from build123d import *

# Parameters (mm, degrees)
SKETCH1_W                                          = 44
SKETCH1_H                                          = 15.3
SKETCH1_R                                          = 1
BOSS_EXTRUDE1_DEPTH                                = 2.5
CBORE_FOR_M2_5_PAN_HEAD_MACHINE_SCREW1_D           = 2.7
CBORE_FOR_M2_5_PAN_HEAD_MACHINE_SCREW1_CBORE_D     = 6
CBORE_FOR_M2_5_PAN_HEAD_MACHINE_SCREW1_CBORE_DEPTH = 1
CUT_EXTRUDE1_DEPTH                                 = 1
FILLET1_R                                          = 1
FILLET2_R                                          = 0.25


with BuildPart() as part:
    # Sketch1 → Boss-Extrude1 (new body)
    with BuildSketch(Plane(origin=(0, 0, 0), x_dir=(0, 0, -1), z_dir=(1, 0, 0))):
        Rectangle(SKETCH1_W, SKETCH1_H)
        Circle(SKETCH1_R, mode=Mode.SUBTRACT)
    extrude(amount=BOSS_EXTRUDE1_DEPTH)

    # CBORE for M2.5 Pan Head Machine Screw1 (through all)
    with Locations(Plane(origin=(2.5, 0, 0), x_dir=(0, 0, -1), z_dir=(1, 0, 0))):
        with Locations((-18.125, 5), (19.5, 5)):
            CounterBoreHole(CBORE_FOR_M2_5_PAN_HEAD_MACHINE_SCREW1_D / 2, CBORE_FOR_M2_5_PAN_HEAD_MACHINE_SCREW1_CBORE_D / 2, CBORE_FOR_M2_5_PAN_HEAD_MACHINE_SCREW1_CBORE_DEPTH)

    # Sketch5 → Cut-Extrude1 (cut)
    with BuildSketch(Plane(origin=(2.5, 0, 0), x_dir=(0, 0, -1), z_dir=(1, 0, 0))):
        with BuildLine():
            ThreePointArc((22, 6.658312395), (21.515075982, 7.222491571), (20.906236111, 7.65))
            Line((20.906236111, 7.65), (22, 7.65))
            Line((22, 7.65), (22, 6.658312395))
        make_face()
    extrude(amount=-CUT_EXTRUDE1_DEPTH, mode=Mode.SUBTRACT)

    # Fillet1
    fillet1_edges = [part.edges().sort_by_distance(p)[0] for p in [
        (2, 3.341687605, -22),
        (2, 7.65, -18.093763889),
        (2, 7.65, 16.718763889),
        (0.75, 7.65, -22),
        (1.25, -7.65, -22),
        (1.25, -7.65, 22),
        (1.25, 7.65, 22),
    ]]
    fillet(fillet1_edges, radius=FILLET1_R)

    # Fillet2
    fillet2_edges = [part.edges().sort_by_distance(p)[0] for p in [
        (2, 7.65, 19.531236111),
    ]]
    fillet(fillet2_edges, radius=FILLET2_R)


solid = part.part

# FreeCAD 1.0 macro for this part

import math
import FreeCAD as App
import Part
import Sketcher

V = App.Vector
Q = App.Units.Quantity


def edges_at(feature, points):
    """Names of the edges that pass closest to the given points."""
    edges = feature.Shape.Edges
    near = lambda p: min(range(len(edges)), key=lambda i: edges[i].distToShape(Part.Vertex(*p))[0])
    return sorted({f"Edge{near(p) + 1}" for p in points})

doc = App.newDocument("Part")
body = doc.addObject("PartDesign::Body", "Body")

# Sketch on YZ plane
sketch1 = body.newObject("Sketcher::SketchObject", "Sketch")
sketch1.AttachmentSupport = (doc.getObject("YZ_Plane"), [""])
sketch1.MapMode = "FlatFace"
sketch1.addGeometry([
    Part.LineSegment(V(7.7, 22, 0), V(-7.7, 22, 0)),  # 0
    Part.LineSegment(V(-7.7, 22, 0), V(-7.7, -22, 0)),  # 1
    Part.LineSegment(V(-7.7, -22, 0), V(7.7, -22, 0)),  # 2
    Part.LineSegment(V(7.7, -22, 0), V(7.7, 22, 0)),  # 3
    Part.Circle(V(0, 0, 0), V(0, 0, 1), 1),  # 4
], False)
sketch1.addConstraint([
    Sketcher.Constraint("Coincident", 0, 2, 1, 1),
    Sketcher.Constraint("Coincident", 1, 2, 2, 1),
    Sketcher.Constraint("Coincident", 2, 2, 3, 1),
    Sketcher.Constraint("Coincident", 3, 2, 0, 1),
    Sketcher.Constraint("Horizontal", 0),
    Sketcher.Constraint("Vertical", 1),
    Sketcher.Constraint("Horizontal", 2),
    Sketcher.Constraint("Vertical", 3),
    Sketcher.Constraint("Coincident", 4, 3, -1, 1),
    Sketcher.Constraint("Symmetric", 0, 2, 2, 2, -1, 1),
    Sketcher.Constraint("Diameter", 4, Q("2 mm")),
    Sketcher.Constraint("DistanceY", 1, 2, 1, 1, Q("44 mm")),
    Sketcher.Constraint("DistanceX", 0, 2, 0, 1, Q("15.3 mm")),
])
pad1 = body.newObject("PartDesign::Pad", "Pad")
pad1.Profile = sketch1
pad1.Length = 2.5

# Sketch on YZ plane
sketch2 = body.newObject("Sketcher::SketchObject", "Sketch001")
sketch2.AttachmentSupport = (doc.getObject("YZ_Plane"), [""])
sketch2.MapMode = "FlatFace"
sketch2.AttachmentOffset = App.Placement(V(0, 0, 2.5), App.Rotation())
sketch2.addGeometry([
    Part.Circle(V(5, 18.1, 0), V(0, 0, 1), 1.4),
    Part.Circle(V(5, -19.5, 0), V(0, 0, 1), 1.4),
], False)
sketch2.addConstraint([
    Sketcher.Constraint("Equal", 0, 1),
    Sketcher.Constraint("Vertical", 0, 3, 1, 3),
    Sketcher.Constraint("Diameter", 0, Q("2.7 mm")),
    Sketcher.Constraint("DistanceX", -1, 1, 0, 3, Q("5 mm")),
    Sketcher.Constraint("DistanceY", 1, 3, -1, 1, Q("19.5 mm")),
    Sketcher.Constraint("DistanceY", -1, 1, 0, 3, Q("18.125 mm")),
])
doc.recompute()
hole = body.newObject("PartDesign::Hole", "Hole")
hole.Profile = sketch2
hole.ThreadType = "None"
hole.Diameter = 2.7
hole.DepthType = "ThroughAll"
hole.HoleCutType = "Counterbore"
hole.HoleCutDiameter = 6
hole.HoleCutDepth = 1

# Sketch on YZ plane
sketch3 = body.newObject("Sketcher::SketchObject", "Sketch002")
sketch3.AttachmentSupport = (doc.getObject("YZ_Plane"), [""])
sketch3.MapMode = "FlatFace"
sketch3.AttachmentOffset = App.Placement(V(0, 0, 2.5), App.Rotation())
sketch3.addGeometry([
    Part.ArcOfCircle(Part.Circle(V(5, -19.5, 0), V(0, 0, 1), 3), math.radians(-56), math.radians(-28)),
    Part.LineSegment(V(6.7, -22, 0), V(7.7, -22, 0)),
    Part.LineSegment(V(7.7, -22, 0), V(7.7, -20.9, 0)),
], False)
sketch3.addConstraint([
    Sketcher.Constraint("Coincident", 0, 1, 1, 1),
    Sketcher.Constraint("Coincident", 1, 2, 2, 1),
    Sketcher.Constraint("Coincident", 2, 2, 0, 2),
    Sketcher.Constraint("Horizontal", 1),
    Sketcher.Constraint("Vertical", 2),
    Sketcher.Constraint("Radius", 0, Q("3 mm")),
    Sketcher.Constraint("DistanceX", -1, 1, 0, 3, Q("5 mm")),
    Sketcher.Constraint("DistanceY", 0, 1, -1, 1, Q("22 mm")),
    Sketcher.Constraint("DistanceY", 0, 3, -1, 1, Q("19.5 mm")),
    Sketcher.Constraint("DistanceX", -1, 1, 1, 2, Q("7.65 mm")),
])
pocket1 = body.newObject("PartDesign::Pocket", "Pocket")
pocket1.Profile = sketch3
pocket1.Length = 1
doc.recompute()

fillet = body.newObject("PartDesign::Fillet", "Fillet")
fillet.Base = (pocket1, edges_at(pocket1, [
    (2, 3.342, -22),
    (2, 7.65, -18.094),
    (2, 7.65, 16.719),
    (0.75, 7.65, -22),
    (1.25, -7.65, -22),
    (1.25, -7.65, 22),
    (1.25, 7.65, 22),
]))
fillet.Radius = 1
doc.recompute()

fillet2 = body.newObject("PartDesign::Fillet", "Fillet001")
fillet2.Base = (fillet, edges_at(fillet, [(2, 7.65, 19.531)]))
fillet2.Radius = 0.25

doc.recompute()
